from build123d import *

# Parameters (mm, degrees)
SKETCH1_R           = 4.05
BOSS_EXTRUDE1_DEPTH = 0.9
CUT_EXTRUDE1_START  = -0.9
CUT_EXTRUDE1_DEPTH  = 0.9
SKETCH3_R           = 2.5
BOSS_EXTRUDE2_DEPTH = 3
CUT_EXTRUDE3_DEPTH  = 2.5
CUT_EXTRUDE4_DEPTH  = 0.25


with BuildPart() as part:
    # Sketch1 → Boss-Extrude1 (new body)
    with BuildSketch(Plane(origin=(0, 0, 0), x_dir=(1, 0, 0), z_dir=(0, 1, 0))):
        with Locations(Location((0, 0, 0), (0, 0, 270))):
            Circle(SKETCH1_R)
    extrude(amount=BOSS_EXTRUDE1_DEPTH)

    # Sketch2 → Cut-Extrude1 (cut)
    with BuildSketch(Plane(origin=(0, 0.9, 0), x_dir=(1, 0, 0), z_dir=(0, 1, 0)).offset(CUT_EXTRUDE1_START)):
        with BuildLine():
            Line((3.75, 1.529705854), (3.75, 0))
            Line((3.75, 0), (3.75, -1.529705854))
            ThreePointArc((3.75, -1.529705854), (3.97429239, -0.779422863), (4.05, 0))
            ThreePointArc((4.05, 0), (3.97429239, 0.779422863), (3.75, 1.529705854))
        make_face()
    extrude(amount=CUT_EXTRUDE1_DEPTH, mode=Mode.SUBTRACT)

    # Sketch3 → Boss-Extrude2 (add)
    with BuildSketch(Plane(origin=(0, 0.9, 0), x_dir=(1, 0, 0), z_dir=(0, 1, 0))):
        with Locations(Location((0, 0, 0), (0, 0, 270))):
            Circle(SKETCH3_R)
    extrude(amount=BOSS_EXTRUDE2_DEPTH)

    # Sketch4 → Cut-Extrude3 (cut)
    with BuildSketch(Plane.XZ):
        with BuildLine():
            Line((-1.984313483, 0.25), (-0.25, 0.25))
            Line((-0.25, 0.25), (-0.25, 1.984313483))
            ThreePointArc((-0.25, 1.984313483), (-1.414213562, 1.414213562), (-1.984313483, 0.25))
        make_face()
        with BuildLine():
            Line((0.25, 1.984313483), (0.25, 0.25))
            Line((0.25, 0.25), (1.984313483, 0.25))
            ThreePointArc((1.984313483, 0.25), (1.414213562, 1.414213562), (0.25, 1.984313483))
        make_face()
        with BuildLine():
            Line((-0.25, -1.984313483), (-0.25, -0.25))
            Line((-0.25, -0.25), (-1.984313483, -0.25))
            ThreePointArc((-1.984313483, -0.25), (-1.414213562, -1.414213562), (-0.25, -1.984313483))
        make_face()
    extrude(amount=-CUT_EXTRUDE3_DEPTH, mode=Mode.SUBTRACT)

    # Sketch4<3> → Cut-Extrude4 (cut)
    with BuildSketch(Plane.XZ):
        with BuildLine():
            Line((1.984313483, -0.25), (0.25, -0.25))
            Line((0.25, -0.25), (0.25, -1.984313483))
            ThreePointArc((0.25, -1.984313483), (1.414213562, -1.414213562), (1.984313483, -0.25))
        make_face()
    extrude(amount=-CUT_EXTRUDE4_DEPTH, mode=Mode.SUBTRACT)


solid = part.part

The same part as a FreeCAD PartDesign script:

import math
import FreeCAD as App
import Part
import Sketcher
from FreeCAD import Vector
Q = App.Units.Quantity

doc = App.newDocument("Part")
body = doc.addObject("PartDesign::Body", "Body")

sketch1 = body.newObject("Sketcher::SketchObject", "Sketch")
sketch1.AttachmentSupport = (doc.getObject("XZ_Plane"), [""])
sketch1.MapMode = "FlatFace"
sketch1.addGeometry(Part.Circle(Vector(0, 0, 0), Vector(0, 0, 1), 4), False)
sketch1.addConstraint([
    Sketcher.Constraint("Coincident", 0, 3, -1, 1),
    Sketcher.Constraint("Diameter", 0, Q("8.1 mm")),
])
pad1 = body.newObject("PartDesign::Pad", "Pad")
pad1.Profile = sketch1
pad1.Length = 0.9
pad1.Reversed = True

sketch2 = body.newObject("Sketcher::SketchObject", "Sketch001")
sketch2.AttachmentSupport = (doc.getObject("XZ_Plane"), [""])
sketch2.MapMode = "FlatFace"
sketch2.addGeometry([
    Part.LineSegment(Vector(3.8, -1.5, 0), Vector(3.8, 1.5, 0)),
    Part.ArcOfCircle(Part.Circle(Vector(0, 0, 0), Vector(0, 0, 1), 4), math.radians(0), math.radians(22)),
    Part.ArcOfCircle(Part.Circle(Vector(0, 0, 0), Vector(0, 0, 1), 4), math.radians(-22), math.radians(0)),
], False)
sketch2.addConstraint([
    Sketcher.Constraint("Coincident", 0, 2, 1, 2),
    Sketcher.Constraint("Tangent", 1, 1, 2, 2),
    Sketcher.Constraint("Coincident", 2, 1, 0, 1),
    Sketcher.Constraint("Vertical", 0),
    Sketcher.Constraint("Coincident", 1, 3, -1, 1),
    Sketcher.Constraint("Equal", 1, 2),
    Sketcher.Constraint("PointOnObject", 1, 1, -1),
    Sketcher.Constraint("Radius", 1, Q("4.05 mm")),
    Sketcher.Constraint("DistanceX", 0, 2, 1, 1, Q("0.3 mm")),
])
pocket1 = body.newObject("PartDesign::Pocket", "Pocket")
pocket1.Profile = sketch2
pocket1.Length = 0.9

sketch3 = body.newObject("Sketcher::SketchObject", "Sketch002")
sketch3.AttachmentSupport = (doc.getObject("XZ_Plane"), [""])
sketch3.MapMode = "FlatFace"
sketch3.AttachmentOffset = App.Placement(Vector(0, 0, -0.9), App.Rotation())
sketch3.addGeometry(Part.Circle(Vector(0, 0, 0), Vector(0, 0, 1), 2.5), False)
sketch3.addConstraint([
    Sketcher.Constraint("Coincident", 0, 3, -1, 1),
    Sketcher.Constraint("Diameter", 0, Q("5 mm")),
])
pad2 = body.newObject("PartDesign::Pad", "Pad001")
pad2.Profile = sketch3
pad2.Length = 3
pad2.Reversed = True

sketch4 = body.newObject("Sketcher::SketchObject", "Sketch003")
sketch4.AttachmentSupport = (doc.getObject("XZ_Plane"), [""])
sketch4.MapMode = "FlatFace"
sketch4.addGeometry([
    Part.LineSegment(Vector(-2, 0.2, 0), Vector(-0.2, 0.2, 0)),
    Part.LineSegment(Vector(-0.2, 0.2, 0), Vector(-0.2, 2, 0)),
    Part.ArcOfCircle(Part.Circle(Vector(0, 0, 0), Vector(0, 0, 1), 2), math.radians(97), math.radians(173)),
    Part.LineSegment(Vector(0.2, 2, 0), Vector(0.2, 0.2, 0)),
    Part.LineSegment(Vector(0.2, 0.2, 0), Vector(2, 0.2, 0)),
    Part.ArcOfCircle(Part.Circle(Vector(0, 0, 0), Vector(0, 0, 1), 2), math.radians(7), math.radians(83)),
    Part.LineSegment(Vector(-0.2, -2, 0), Vector(-0.2, -0.2, 0)),
    Part.LineSegment(Vector(-0.2, -0.2, 0), Vector(-2, -0.2, 0)),
    Part.ArcOfCircle(Part.Circle(Vector(0, 0, 0), Vector(0, 0, 1), 2), math.radians(-173), math.radians(-97)),
], False)
sketch4.addConstraint([
    Sketcher.Constraint("Coincident", 0, 2, 1, 1),
    Sketcher.Constraint("Coincident", 1, 2, 2, 1),
    Sketcher.Constraint("Coincident", 2, 2, 0, 1),
    Sketcher.Constraint("Coincident", 3, 2, 4, 1),
    Sketcher.Constraint("Coincident", 4, 2, 5, 1),
    Sketcher.Constraint("Coincident", 5, 2, 3, 1),
    Sketcher.Constraint("Coincident", 6, 2, 7, 1),
    Sketcher.Constraint("Coincident", 7, 2, 8, 1),
    Sketcher.Constraint("Coincident", 8, 2, 6, 1),
    Sketcher.Constraint("Horizontal", 0),
    Sketcher.Constraint("Vertical", 1),
    Sketcher.Constraint("Vertical", 3),
    Sketcher.Constraint("Horizontal", 4),
    Sketcher.Constraint("Vertical", 6),
    Sketcher.Constraint("Horizontal", 7),
    Sketcher.Constraint("Coincident", 2, 3, -1, 1),
    Sketcher.Constraint("Coincident", 5, 3, -1, 1),
    Sketcher.Constraint("Coincident", 8, 3, -1, 1),
    Sketcher.Constraint("Equal", 2, 5),
    Sketcher.Constraint("Equal", 5, 8),
    Sketcher.Constraint("Symmetric", 3, 2, 6, 2, -1, 1),
    Sketcher.Constraint("Symmetric", 0, 2, 3, 2, -2),
    Sketcher.Constraint("Equal", 7, 1),
    Sketcher.Constraint("Radius", 2, Q("2 mm")),
    Sketcher.Constraint("DistanceX", 0, 2, 3, 2, Q("0.5 mm")),
])
pocket2 = body.newObject("PartDesign::Pocket", "Pocket001")
pocket2.Profile = sketch4
pocket2.Length = 2.5

sketch5 = body.newObject("Sketcher::SketchObject", "Sketch004")
sketch5.AttachmentSupport = (doc.getObject("XZ_Plane"), [""])
sketch5.MapMode = "FlatFace"
sketch5.addGeometry([
    Part.LineSegment(Vector(2, -0.2, 0), Vector(0.2, -0.2, 0)),
    Part.LineSegment(Vector(0.2, -0.2, 0), Vector(0.2, -2, 0)),
    Part.ArcOfCircle(Part.Circle(Vector(0, 0, 0), Vector(0, 0, 1), 2), math.radians(-83), math.radians(-7)),
], False)
sketch5.addConstraint([
    Sketcher.Constraint("Coincident", 0, 2, 1, 1),
    Sketcher.Constraint("Coincident", 1, 2, 2, 1),
    Sketcher.Constraint("Coincident", 2, 2, 0, 1),
    Sketcher.Constraint("Horizontal", 0),
    Sketcher.Constraint("Vertical", 1),
    Sketcher.Constraint("Coincident", 2, 3, -1, 1),
    Sketcher.Constraint("Equal", 0, 1),
    Sketcher.Constraint("Radius", 2, Q("2 mm")),
    Sketcher.Constraint("DistanceX", -1, 1, 0, 2, Q("0.25 mm")),
])
pocket3 = body.newObject("PartDesign::Pocket", "Pocket002")
pocket3.Profile = sketch5
pocket3.Length = 0.25

doc.recompute()
